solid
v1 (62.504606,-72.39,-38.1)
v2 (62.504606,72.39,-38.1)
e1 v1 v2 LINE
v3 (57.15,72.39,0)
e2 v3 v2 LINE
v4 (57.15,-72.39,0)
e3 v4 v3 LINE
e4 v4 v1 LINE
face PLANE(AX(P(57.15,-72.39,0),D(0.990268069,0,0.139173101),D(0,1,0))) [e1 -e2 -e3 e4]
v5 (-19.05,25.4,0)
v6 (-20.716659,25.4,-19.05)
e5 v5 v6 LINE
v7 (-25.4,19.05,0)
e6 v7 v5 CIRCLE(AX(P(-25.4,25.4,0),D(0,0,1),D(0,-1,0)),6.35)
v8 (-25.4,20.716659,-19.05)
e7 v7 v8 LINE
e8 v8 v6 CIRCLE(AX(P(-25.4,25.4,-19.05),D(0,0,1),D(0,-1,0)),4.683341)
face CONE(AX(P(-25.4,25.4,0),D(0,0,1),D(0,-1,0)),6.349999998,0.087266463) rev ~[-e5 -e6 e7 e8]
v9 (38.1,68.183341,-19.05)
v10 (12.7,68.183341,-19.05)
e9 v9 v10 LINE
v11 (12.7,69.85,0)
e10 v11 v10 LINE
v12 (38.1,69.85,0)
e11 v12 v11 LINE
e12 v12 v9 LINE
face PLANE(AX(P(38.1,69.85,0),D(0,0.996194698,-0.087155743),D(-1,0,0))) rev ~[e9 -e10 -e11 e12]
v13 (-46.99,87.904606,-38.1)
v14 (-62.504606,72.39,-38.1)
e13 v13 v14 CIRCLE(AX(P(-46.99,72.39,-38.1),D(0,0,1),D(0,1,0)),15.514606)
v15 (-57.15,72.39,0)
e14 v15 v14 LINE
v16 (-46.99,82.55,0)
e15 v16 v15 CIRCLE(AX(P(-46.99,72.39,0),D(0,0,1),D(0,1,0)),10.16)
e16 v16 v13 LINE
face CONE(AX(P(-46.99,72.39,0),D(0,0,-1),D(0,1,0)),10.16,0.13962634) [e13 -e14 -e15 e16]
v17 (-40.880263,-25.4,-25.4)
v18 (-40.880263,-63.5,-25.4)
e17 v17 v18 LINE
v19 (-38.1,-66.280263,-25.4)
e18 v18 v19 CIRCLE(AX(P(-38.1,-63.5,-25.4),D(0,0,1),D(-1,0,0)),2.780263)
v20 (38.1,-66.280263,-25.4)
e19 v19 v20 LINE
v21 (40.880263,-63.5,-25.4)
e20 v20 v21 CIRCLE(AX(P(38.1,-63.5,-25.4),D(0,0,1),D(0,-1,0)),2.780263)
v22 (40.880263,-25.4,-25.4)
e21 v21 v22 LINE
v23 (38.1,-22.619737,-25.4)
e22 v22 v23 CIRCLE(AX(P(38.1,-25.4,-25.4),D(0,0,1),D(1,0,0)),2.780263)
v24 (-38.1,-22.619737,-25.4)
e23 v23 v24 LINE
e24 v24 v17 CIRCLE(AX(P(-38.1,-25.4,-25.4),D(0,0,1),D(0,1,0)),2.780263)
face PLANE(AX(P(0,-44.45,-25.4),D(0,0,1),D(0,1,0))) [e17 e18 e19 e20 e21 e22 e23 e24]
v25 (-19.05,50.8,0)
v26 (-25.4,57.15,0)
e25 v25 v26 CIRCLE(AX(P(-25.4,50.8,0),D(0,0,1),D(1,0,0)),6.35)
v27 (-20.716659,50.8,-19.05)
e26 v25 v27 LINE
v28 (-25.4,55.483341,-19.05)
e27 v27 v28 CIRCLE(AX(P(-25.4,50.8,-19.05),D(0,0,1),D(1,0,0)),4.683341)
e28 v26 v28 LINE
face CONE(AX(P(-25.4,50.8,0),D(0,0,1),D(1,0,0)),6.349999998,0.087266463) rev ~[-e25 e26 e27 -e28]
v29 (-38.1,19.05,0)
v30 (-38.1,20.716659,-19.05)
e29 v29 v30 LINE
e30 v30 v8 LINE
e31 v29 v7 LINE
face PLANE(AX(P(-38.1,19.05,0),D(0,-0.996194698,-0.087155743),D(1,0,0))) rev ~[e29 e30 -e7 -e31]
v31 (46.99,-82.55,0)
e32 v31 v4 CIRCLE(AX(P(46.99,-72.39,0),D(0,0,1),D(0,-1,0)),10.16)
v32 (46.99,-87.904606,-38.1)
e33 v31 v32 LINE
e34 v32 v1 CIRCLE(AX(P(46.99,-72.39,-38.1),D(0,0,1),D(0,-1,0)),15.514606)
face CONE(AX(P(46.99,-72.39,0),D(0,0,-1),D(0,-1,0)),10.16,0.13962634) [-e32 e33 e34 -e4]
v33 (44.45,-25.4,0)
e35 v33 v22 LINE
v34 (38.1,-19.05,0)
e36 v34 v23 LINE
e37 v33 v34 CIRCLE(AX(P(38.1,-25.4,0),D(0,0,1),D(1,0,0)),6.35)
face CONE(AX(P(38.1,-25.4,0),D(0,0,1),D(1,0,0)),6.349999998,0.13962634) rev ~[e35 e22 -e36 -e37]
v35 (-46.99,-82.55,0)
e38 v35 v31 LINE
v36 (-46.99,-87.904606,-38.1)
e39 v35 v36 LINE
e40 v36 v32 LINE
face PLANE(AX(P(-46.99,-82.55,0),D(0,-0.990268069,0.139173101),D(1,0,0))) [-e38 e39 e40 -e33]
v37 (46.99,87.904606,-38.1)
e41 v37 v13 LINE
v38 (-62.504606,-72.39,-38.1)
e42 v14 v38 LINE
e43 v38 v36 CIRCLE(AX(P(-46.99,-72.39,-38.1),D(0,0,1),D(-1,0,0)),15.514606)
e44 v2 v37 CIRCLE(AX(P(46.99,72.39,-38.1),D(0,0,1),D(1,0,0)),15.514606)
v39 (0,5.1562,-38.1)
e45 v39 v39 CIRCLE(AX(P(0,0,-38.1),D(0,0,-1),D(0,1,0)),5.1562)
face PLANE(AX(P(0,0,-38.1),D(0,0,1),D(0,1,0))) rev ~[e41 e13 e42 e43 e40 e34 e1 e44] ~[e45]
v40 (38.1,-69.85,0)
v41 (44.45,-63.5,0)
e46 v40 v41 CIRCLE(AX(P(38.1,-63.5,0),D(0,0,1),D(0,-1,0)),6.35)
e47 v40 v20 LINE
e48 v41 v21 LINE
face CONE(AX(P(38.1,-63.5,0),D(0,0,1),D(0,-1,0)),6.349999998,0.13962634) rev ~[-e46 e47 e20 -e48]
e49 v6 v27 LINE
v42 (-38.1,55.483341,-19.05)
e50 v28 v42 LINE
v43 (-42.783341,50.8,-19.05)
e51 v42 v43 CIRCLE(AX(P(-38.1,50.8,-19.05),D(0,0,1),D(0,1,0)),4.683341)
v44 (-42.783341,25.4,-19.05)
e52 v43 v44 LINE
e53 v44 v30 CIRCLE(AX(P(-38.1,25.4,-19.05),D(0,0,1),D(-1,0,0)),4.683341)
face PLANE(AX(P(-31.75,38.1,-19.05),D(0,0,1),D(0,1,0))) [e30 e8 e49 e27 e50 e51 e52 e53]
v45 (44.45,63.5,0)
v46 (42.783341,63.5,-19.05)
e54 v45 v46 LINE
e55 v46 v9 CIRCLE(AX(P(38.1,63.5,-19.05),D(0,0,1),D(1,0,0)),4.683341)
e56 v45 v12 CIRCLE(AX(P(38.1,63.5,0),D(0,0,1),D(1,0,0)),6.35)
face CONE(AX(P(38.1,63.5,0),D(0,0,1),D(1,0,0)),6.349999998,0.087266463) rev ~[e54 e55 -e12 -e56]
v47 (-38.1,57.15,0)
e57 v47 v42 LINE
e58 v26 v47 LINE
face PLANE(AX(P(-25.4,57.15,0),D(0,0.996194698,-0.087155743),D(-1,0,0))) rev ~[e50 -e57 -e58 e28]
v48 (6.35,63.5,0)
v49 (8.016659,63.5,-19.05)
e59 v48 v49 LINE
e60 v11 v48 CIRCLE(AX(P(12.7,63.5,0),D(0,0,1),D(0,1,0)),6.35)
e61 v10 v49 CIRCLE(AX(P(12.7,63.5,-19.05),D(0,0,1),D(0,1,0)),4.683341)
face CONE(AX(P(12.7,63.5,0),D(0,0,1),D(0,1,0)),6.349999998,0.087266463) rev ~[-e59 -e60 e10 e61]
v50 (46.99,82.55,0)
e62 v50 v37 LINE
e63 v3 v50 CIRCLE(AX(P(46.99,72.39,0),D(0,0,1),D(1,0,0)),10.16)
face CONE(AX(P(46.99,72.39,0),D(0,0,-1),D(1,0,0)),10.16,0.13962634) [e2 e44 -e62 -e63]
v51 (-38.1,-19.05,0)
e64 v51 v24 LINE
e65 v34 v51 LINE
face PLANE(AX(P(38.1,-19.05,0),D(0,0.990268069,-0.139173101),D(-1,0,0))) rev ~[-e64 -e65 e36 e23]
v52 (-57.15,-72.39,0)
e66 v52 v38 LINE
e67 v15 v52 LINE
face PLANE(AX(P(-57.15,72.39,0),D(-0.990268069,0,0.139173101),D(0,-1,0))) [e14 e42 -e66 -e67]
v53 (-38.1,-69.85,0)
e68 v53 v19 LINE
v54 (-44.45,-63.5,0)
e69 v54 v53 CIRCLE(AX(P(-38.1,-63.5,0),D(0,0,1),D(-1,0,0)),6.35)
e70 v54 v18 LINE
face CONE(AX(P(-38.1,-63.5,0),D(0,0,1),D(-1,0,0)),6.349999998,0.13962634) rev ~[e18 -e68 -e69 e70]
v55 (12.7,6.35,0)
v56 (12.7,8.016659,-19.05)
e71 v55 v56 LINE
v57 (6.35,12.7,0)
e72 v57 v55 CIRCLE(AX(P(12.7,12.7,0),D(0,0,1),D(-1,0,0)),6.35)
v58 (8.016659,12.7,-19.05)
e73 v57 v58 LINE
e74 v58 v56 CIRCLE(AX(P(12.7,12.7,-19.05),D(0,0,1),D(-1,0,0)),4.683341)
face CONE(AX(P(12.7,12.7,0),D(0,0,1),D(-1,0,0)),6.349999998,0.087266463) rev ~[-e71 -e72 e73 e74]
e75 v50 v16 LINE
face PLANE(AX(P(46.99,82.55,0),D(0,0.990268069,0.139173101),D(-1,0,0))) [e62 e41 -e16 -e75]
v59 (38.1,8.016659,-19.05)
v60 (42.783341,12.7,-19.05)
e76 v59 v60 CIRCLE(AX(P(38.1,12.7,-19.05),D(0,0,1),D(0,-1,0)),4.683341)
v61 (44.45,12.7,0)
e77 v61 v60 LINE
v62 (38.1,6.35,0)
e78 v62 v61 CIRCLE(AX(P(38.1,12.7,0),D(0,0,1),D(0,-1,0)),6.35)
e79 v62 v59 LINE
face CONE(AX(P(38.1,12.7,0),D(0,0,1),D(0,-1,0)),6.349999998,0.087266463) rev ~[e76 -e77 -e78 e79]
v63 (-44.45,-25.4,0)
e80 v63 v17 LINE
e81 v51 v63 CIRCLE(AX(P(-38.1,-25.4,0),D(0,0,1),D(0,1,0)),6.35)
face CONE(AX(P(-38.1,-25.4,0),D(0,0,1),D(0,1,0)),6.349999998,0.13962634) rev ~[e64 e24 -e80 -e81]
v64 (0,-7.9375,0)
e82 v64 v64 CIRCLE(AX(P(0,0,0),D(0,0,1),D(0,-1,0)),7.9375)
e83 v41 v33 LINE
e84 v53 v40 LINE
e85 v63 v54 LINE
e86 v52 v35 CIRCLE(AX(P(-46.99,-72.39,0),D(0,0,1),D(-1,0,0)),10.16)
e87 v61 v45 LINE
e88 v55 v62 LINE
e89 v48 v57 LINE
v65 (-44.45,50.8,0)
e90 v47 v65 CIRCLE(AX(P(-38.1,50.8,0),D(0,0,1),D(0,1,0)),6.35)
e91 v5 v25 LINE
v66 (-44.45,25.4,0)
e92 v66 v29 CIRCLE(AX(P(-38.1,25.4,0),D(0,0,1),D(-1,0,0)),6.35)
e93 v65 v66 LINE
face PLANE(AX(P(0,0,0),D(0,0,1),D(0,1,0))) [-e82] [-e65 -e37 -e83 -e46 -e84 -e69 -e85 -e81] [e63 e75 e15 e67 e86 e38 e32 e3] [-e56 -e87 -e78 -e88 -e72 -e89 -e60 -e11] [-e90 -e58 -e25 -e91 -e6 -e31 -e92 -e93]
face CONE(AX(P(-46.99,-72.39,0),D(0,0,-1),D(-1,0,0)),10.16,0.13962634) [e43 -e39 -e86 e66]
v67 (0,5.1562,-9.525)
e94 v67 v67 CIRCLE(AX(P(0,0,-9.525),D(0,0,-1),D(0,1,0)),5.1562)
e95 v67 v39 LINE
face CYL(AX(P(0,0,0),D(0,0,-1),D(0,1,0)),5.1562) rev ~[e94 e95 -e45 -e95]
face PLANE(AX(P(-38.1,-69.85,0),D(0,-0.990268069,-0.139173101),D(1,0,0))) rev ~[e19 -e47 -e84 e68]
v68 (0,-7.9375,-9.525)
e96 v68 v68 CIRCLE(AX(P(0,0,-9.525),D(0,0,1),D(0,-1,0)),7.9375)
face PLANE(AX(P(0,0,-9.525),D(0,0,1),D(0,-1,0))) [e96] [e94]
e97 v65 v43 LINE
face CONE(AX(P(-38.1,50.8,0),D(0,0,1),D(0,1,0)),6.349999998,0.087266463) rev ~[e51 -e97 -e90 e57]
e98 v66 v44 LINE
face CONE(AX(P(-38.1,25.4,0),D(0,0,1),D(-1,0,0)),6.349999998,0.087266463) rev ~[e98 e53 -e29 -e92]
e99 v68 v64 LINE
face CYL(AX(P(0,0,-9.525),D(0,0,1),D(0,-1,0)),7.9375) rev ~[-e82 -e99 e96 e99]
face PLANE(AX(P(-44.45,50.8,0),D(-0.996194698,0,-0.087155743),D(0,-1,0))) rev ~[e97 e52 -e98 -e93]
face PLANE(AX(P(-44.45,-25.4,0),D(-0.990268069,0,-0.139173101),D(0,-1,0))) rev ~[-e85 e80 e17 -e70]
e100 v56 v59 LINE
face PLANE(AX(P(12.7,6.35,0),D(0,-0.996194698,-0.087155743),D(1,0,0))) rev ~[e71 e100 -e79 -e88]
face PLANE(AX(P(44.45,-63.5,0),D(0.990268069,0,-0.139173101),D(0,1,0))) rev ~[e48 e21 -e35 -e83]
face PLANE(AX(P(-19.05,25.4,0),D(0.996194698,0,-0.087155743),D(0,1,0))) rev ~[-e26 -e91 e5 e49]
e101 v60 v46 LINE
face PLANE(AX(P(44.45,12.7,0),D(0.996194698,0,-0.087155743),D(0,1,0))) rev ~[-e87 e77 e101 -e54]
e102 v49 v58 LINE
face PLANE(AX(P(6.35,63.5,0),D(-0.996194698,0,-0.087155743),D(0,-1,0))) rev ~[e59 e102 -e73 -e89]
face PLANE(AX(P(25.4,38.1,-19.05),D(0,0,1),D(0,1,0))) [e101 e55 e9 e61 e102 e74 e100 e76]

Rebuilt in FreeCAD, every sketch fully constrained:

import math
import FreeCAD as App
import Part
import Sketcher
Q = App.Units.Quantity


def faces_at(feature, points):
    """Names of the faces that lie closest to the given points."""
    faces = feature.Shape.Faces
    near = lambda p: min(range(len(faces)), key=lambda i: faces[i].distToShape(Part.Vertex(*p))[0])
    return sorted({f"Face{near(p) + 1}" for p in points})

doc = App.newDocument("Part")
params = doc.addObject("Spreadsheet::Sheet", "Params")
for row, (alias, value) in enumerate([
    ("sketch1_radius", "0.4 in"),
    ("sketch1_width", "3.7 in"),
    ("sketch1_height", "5.7 in"),
    ("pad1_length", "1.5 in"),
    ("draft_angle", "8 deg"),
    ("sketch2_height", "1 in"),
    ("sketch2_radius", "0.25 in"),
    ("sketch2_width", "0.5 in"),
    ("pad2_length", "0.75 in"),
    ("draft2_angle", "5 deg"),
    ("sketch3_width", "1 in"),
    ("sketch3_height", "2 in"),
    ("sketch3_radius", "0.25 in"),
    ("pad3_length", "0.75 in"),
    ("draft3_angle", "5 deg"),
    ("sketch4_width", "3 in"),
    ("sketch4_radius", "0.25 in"),
    ("sketch4_height", "1.5 in"),
    ("pad4_length", "1 in"),
    ("draft4_angle", "8 deg"),
    ("sketch5_diameter", "0.406 in"),
    ("hole_diameter", "0.406 in"),
    ("hole_cbore_diameter", "0.625 in"),
    ("hole_cbore_depth", "0.375 in"),
], start=1):
    params.set(f"A{row}", alias)
    params.set(f"B{row}", "=" + value)
    params.setAlias(f"B{row}", alias)

body = doc.addObject("PartDesign::Body", "Body")

# Sketch on XY plane
sketch1 = body.newObject("Sketcher::SketchObject", "Sketch")
sketch1.AttachmentSupport = (doc.getObject("XY_Plane"), [""])
sketch1.MapMode = "FlatFace"
sketch1.addGeometry([
    Part.ArcOfCircle(Part.Circle(App.Vector(-47, -72, 0), App.Vector(0, 0, 1), 10), math.radians(180), math.radians(270)),  # 0
    Part.LineSegment(App.Vector(-47, -83, 0), App.Vector(47, -83, 0)),  # 1
    Part.ArcOfCircle(Part.Circle(App.Vector(47, -72, 0), App.Vector(0, 0, 1), 10), math.radians(-90), math.radians(0)),  # 2
    Part.LineSegment(App.Vector(57, -72, 0), App.Vector(57, 72, 0)),  # 3
    Part.ArcOfCircle(Part.Circle(App.Vector(47, 72, 0), App.Vector(0, 0, 1), 10), math.radians(0), math.radians(90)),  # 4
    Part.LineSegment(App.Vector(47, 83, 0), App.Vector(-47, 83, 0)),  # 5
    Part.ArcOfCircle(Part.Circle(App.Vector(-47, 72, 0), App.Vector(0, 0, 1), 10), math.radians(90), math.radians(180)),  # 6
    Part.LineSegment(App.Vector(-57, 72, 0), App.Vector(-57, -72, 0)),  # 7
], False)
sketch1.addConstraint([
    Sketcher.Constraint("Tangent", 0, 2, 1, 1),
    Sketcher.Constraint("Tangent", 1, 2, 2, 1),
    Sketcher.Constraint("Tangent", 2, 2, 3, 1),
    Sketcher.Constraint("Tangent", 3, 2, 4, 1),
    Sketcher.Constraint("Tangent", 4, 2, 5, 1),
    Sketcher.Constraint("Tangent", 5, 2, 6, 1),
    Sketcher.Constraint("Tangent", 6, 2, 7, 1),
    Sketcher.Constraint("Tangent", 7, 2, 0, 1),
    Sketcher.Constraint("Horizontal", 1),
    Sketcher.Constraint("Vertical", 3),
    Sketcher.Constraint("Horizontal", 5),
    Sketcher.Constraint("Vertical", 7),
    Sketcher.Constraint("Equal", 0, 2),
    Sketcher.Constraint("Equal", 2, 4),
    Sketcher.Constraint("Equal", 4, 6),
    Sketcher.Constraint("Symmetric", 0, 3, 4, 3, -1, 1),
    Sketcher.Constraint("Radius", 0, Q("0.4 in")),
    Sketcher.Constraint("DistanceX", 1, 1, 1, 2, Q("3.7 in")),
    Sketcher.Constraint("DistanceY", 3, 1, 3, 2, Q("5.7 in")),
])
sketch1.setExpression("Constraints[16]", "Params.sketch1_radius")
sketch1.setExpression("Constraints[17]", "Params.sketch1_width")
sketch1.setExpression("Constraints[18]", "Params.sketch1_height")
pad1 = body.newObject("PartDesign::Pad", "Pad")
pad1.Profile = sketch1
pad1.setExpression("Length", "Params.pad1_length")
pad1.Reversed = True
doc.recompute()

draft = body.newObject("PartDesign::Draft", "Draft")
draft.Base = (pad1, faces_at(pad1, [
    (-57.15, 0, -19.05),
    (-54.174, -79.574, -19.05),
    (0, -82.55, -19.05),
    (54.174, -79.574, -19.05),
    (57.15, 0, -19.05),
    (54.174, 79.574, -19.05),
    (0, 82.55, -19.05),
    (-54.174, 79.574, -19.05),
]))
draft.NeutralPlane = (doc.getObject("XY_Plane"), [""])
draft.setExpression("Angle", "Params.draft_angle")
draft.Reversed = False
body2 = doc.addObject("PartDesign::Body", "Body001")

# Sketch on XY plane
sketch2 = body2.newObject("Sketcher::SketchObject", "Sketch001")
sketch2.AttachmentSupport = (doc.getObject("XY_Plane001"), [""])
sketch2.MapMode = "FlatFace"
sketch2.addGeometry([
    Part.LineSegment(App.Vector(-19, 25, 0), App.Vector(-19, 51, 0)),  # 0
    Part.ArcOfCircle(Part.Circle(App.Vector(-25, 51, 0), App.Vector(0, 0, 1), 6), math.radians(0), math.radians(90)),  # 1
    Part.LineSegment(App.Vector(-25, 57, 0), App.Vector(-38, 57, 0)),  # 2
    Part.ArcOfCircle(Part.Circle(App.Vector(-38, 51, 0), App.Vector(0, 0, 1), 6), math.radians(90), math.radians(180)),  # 3
    Part.LineSegment(App.Vector(-44, 51, 0), App.Vector(-44, 25, 0)),  # 4
    Part.ArcOfCircle(Part.Circle(App.Vector(-38, 25, 0), App.Vector(0, 0, 1), 6), math.radians(180), math.radians(270)),  # 5
    Part.LineSegment(App.Vector(-38, 19, 0), App.Vector(-25, 19, 0)),  # 6
    Part.ArcOfCircle(Part.Circle(App.Vector(-25, 25, 0), App.Vector(0, 0, 1), 6), math.radians(-90), math.radians(0)),  # 7
], False)
sketch2.addConstraint([
    Sketcher.Constraint("Tangent", 0, 2, 1, 1),
    Sketcher.Constraint("Tangent", 1, 2, 2, 1),
    Sketcher.Constraint("Tangent", 2, 2, 3, 1),
    Sketcher.Constraint("Tangent", 3, 2, 4, 1),
    Sketcher.Constraint("Tangent", 4, 2, 5, 1),
    Sketcher.Constraint("Tangent", 5, 2, 6, 1),
    Sketcher.Constraint("Tangent", 6, 2, 7, 1),
    Sketcher.Constraint("Tangent", 7, 2, 0, 1),
    Sketcher.Constraint("Vertical", 0),
    Sketcher.Constraint("Horizontal", 2),
    Sketcher.Constraint("Vertical", 4),
    Sketcher.Constraint("Horizontal", 6),
    Sketcher.Constraint("Equal", 1, 3),
    Sketcher.Constraint("Equal", 3, 5),
    Sketcher.Constraint("Equal", 5, 7),
    Sketcher.Constraint("DistanceY", 0, 1, 0, 2, Q("1 in")),
    Sketcher.Constraint("Radius", 1, Q("0.25 in")),
    Sketcher.Constraint("DistanceX", 2, 2, 2, 1, Q("0.5 in")),
    Sketcher.Constraint("DistanceX", 1, 3, -1, 1, Q("1 in")),
    Sketcher.Constraint("DistanceY", -1, 1, 1, 3, Q("2 in")),
])
sketch2.setExpression("Constraints[15]", "Params.sketch2_height")
sketch2.setExpression("Constraints[16]", "Params.sketch2_radius")
sketch2.setExpression("Constraints[17]", "Params.sketch2_width")
pad2 = body2.newObject("PartDesign::Pad", "Pad001")
pad2.Profile = sketch2
pad2.setExpression("Length", "Params.pad2_length")
pad2.Reversed = True
doc.recompute()

draft2 = body2.newObject("PartDesign::Draft", "Draft001")
draft2.Base = (pad2, faces_at(pad2, [
    (-20.91, 20.91, -9.525),
    (-19.05, 38.1, -9.525),
    (-20.91, 55.29, -9.525),
    (-31.75, 57.15, -9.525),
    (-42.59, 55.29, -9.525),
    (-44.45, 38.1, -9.525),
    (-42.59, 20.91, -9.525),
    (-31.75, 19.05, -9.525),
]))
draft2.NeutralPlane = (doc.getObject("XY_Plane001"), [""])
draft2.setExpression("Angle", "Params.draft2_angle")
draft2.Reversed = True
doc.recompute()

boolean = body.newObject("PartDesign::Boolean", "Boolean")
boolean.Type = "Cut"
boolean.addObjects([body2])
body3 = doc.addObject("PartDesign::Body", "Body002")

# Sketch on XY plane
sketch3 = body3.newObject("Sketcher::SketchObject", "Sketch002")
sketch3.AttachmentSupport = (doc.getObject("XY_Plane002"), [""])
sketch3.MapMode = "FlatFace"
sketch3.addGeometry([
    Part.LineSegment(App.Vector(13, 6, 0), App.Vector(38, 6, 0)),  # 0
    Part.ArcOfCircle(Part.Circle(App.Vector(38, 13, 0), App.Vector(0, 0, 1), 6), math.radians(-90), math.radians(0)),  # 1
    Part.LineSegment(App.Vector(44, 13, 0), App.Vector(44, 64, 0)),  # 2
    Part.ArcOfCircle(Part.Circle(App.Vector(38, 64, 0), App.Vector(0, 0, 1), 6), math.radians(0), math.radians(90)),  # 3
    Part.LineSegment(App.Vector(38, 70, 0), App.Vector(13, 70, 0)),  # 4
    Part.ArcOfCircle(Part.Circle(App.Vector(13, 64, 0), App.Vector(0, 0, 1), 6), math.radians(90), math.radians(180)),  # 5
    Part.LineSegment(App.Vector(6, 64, 0), App.Vector(6, 13, 0)),  # 6
    Part.ArcOfCircle(Part.Circle(App.Vector(13, 13, 0), App.Vector(0, 0, 1), 6), math.radians(180), math.radians(270)),  # 7
], False)
sketch3.addConstraint([
    Sketcher.Constraint("Tangent", 0, 2, 1, 1),
    Sketcher.Constraint("Tangent", 1, 2, 2, 1),
    Sketcher.Constraint("Tangent", 2, 2, 3, 1),
    Sketcher.Constraint("Tangent", 3, 2, 4, 1),
    Sketcher.Constraint("Tangent", 4, 2, 5, 1),
    Sketcher.Constraint("Tangent", 5, 2, 6, 1),
    Sketcher.Constraint("Tangent", 6, 2, 7, 1),
    Sketcher.Constraint("Tangent", 7, 2, 0, 1),
    Sketcher.Constraint("Horizontal", 0),
    Sketcher.Constraint("Vertical", 2),
    Sketcher.Constraint("Horizontal", 4),
    Sketcher.Constraint("Vertical", 6),
    Sketcher.Constraint("Equal", 1, 3),
    Sketcher.Constraint("Equal", 3, 5),
    Sketcher.Constraint("Equal", 5, 7),
    Sketcher.Constraint("DistanceX", 0, 1, 0, 2, Q("1 in")),
    Sketcher.Constraint("DistanceY", 2, 1, 2, 2, Q("2 in")),
    Sketcher.Constraint("Radius", 1, Q("0.25 in")),
    Sketcher.Constraint("DistanceX", -1, 1, 1, 3, Q("1.5 in")),
    Sketcher.Constraint("DistanceY", -1, 1, 1, 3, Q("0.5 in")),
])
sketch3.setExpression("Constraints[15]", "Params.sketch3_width")
sketch3.setExpression("Constraints[16]", "Params.sketch3_height")
sketch3.setExpression("Constraints[17]", "Params.sketch3_radius")
pad3 = body3.newObject("PartDesign::Pad", "Pad002")
pad3.Profile = sketch3
pad3.setExpression("Length", "Params.pad3_length")
pad3.Reversed = True
doc.recompute()

draft3 = body3.newObject("PartDesign::Draft", "Draft002")
draft3.Base = (pad3, faces_at(pad3, [
    (25.4, 6.35, -9.525),
    (42.59, 8.21, -9.525),
    (44.45, 38.1, -9.525),
    (42.59, 67.99, -9.525),
    (25.4, 69.85, -9.525),
    (8.21, 67.99, -9.525),
    (6.35, 38.1, -9.525),
    (8.21, 8.21, -9.525),
]))
draft3.NeutralPlane = (doc.getObject("XY_Plane002"), [""])
draft3.setExpression("Angle", "Params.draft3_angle")
draft3.Reversed = True
doc.recompute()

boolean2 = body.newObject("PartDesign::Boolean", "Boolean001")
boolean2.Type = "Cut"
boolean2.addObjects([body3])
body4 = doc.addObject("PartDesign::Body", "Body003")

# Sketch on XY plane
sketch4 = body4.newObject("Sketcher::SketchObject", "Sketch003")
sketch4.AttachmentSupport = (doc.getObject("XY_Plane003"), [""])
sketch4.MapMode = "FlatFace"
sketch4.addGeometry([
    Part.ArcOfCircle(Part.Circle(App.Vector(-38, -64, 0), App.Vector(0, 0, 1), 6), math.radians(180), math.radians(270)),  # 0
    Part.LineSegment(App.Vector(-38, -70, 0), App.Vector(38, -70, 0)),  # 1
    Part.ArcOfCircle(Part.Circle(App.Vector(38, -64, 0), App.Vector(0, 0, 1), 6), math.radians(-90), math.radians(0)),  # 2
    Part.LineSegment(App.Vector(44, -64, 0), App.Vector(44, -25, 0)),  # 3
    Part.ArcOfCircle(Part.Circle(App.Vector(38, -25, 0), App.Vector(0, 0, 1), 6), math.radians(0), math.radians(90)),  # 4
    Part.LineSegment(App.Vector(38, -19, 0), App.Vector(-38, -19, 0)),  # 5
    Part.ArcOfCircle(Part.Circle(App.Vector(-38, -25, 0), App.Vector(0, 0, 1), 6), math.radians(90), math.radians(180)),  # 6
    Part.LineSegment(App.Vector(-44, -25, 0), App.Vector(-44, -64, 0)),  # 7
], False)
sketch4.addConstraint([
    Sketcher.Constraint("Tangent", 0, 2, 1, 1),
    Sketcher.Constraint("Tangent", 1, 2, 2, 1),
    Sketcher.Constraint("Tangent", 2, 2, 3, 1),
    Sketcher.Constraint("Tangent", 3, 2, 4, 1),
    Sketcher.Constraint("Tangent", 4, 2, 5, 1),
    Sketcher.Constraint("Tangent", 5, 2, 6, 1),
    Sketcher.Constraint("Tangent", 6, 2, 7, 1),
    Sketcher.Constraint("Tangent", 7, 2, 0, 1),
    Sketcher.Constraint("Horizontal", 1),
    Sketcher.Constraint("Vertical", 3),
    Sketcher.Constraint("Horizontal", 5),
    Sketcher.Constraint("Vertical", 7),
    Sketcher.Constraint("Equal", 0, 2),
    Sketcher.Constraint("Equal", 2, 4),
    Sketcher.Constraint("Equal", 4, 6),
    Sketcher.Constraint("DistanceX", 1, 1, 1, 2, Q("3 in")),
    Sketcher.Constraint("Radius", 0, Q("0.25 in")),
    Sketcher.Constraint("DistanceY", 3, 1, 3, 2, Q("1.5 in")),
    Sketcher.Constraint("DistanceY", 4, 3, -1, 1, Q("1 in")),
    Sketcher.Constraint("DistanceX", 0, 3, -1, 1, Q("1.5 in")),
])
sketch4.setExpression("Constraints[15]", "Params.sketch4_width")
sketch4.setExpression("Constraints[16]", "Params.sketch4_radius")
sketch4.setExpression("Constraints[17]", "Params.sketch4_height")
pad4 = body4.newObject("PartDesign::Pad", "Pad003")
pad4.Profile = sketch4
pad4.setExpression("Length", "Params.pad4_length")
pad4.Reversed = True
doc.recompute()

draft4 = body4.newObject("PartDesign::Draft", "Draft003")
draft4.Base = (pad4, faces_at(pad4, [
    (-42.59, -20.91, -12.7),
    (-44.45, -44.45, -12.7),
    (-42.59, -67.99, -12.7),
    (0, -69.85, -12.7),
    (42.59, -67.99, -12.7),
    (44.45, -44.45, -12.7),
    (42.59, -20.91, -12.7),
    (0, -19.05, -12.7),
]))
draft4.NeutralPlane = (doc.getObject("XY_Plane003"), [""])
draft4.setExpression("Angle", "Params.draft4_angle")
draft4.Reversed = True
doc.recompute()

boolean3 = body.newObject("PartDesign::Boolean", "Boolean002")
boolean3.Type = "Cut"
boolean3.addObjects([body4])

# Sketch on XY plane
sketch5 = body.newObject("Sketcher::SketchObject", "Sketch004")
sketch5.AttachmentSupport = (doc.getObject("XY_Plane"), [""])
sketch5.MapMode = "FlatFace"
sketch5.addGeometry(Part.Circle(App.Vector(0, 0, 0), App.Vector(0, 0, 1), 5), False)
sketch5.addConstraint([
    Sketcher.Constraint("Coincident", 0, 3, -1, 1),
    Sketcher.Constraint("Diameter", 0, Q("0.406 in")),
])
sketch5.setExpression("Constraints[1]", "Params.sketch5_diameter")
doc.recompute()
hole = body.newObject("PartDesign::Hole", "Hole")
hole.Profile = sketch5
hole.ThreadType = "None"
hole.setExpression("Diameter", "Params.hole_diameter")
hole.DepthType = "ThroughAll"
hole.HoleCutType = "Counterbore"
hole.setExpression("HoleCutDiameter", "Params.hole_cbore_diameter")
hole.setExpression("HoleCutDepth", "Params.hole_cbore_depth")

doc.recompute()
